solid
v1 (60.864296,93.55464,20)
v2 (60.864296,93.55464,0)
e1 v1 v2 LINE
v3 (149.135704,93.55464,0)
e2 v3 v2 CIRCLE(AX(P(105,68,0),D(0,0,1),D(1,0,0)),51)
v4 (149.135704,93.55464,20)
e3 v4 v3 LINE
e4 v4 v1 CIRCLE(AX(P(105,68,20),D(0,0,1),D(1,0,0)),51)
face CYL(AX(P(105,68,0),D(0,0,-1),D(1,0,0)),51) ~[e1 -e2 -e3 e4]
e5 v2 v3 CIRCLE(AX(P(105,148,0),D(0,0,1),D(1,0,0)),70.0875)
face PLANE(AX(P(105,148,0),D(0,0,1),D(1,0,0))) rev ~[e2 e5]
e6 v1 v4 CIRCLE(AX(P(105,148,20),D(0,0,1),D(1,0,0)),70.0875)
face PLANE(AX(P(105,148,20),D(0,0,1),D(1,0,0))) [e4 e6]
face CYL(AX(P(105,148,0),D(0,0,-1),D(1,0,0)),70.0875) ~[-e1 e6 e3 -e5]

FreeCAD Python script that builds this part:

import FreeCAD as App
import Part
import Sketcher

doc = App.newDocument("Part")
params = doc.addObject("Spreadsheet::Sheet", "Params")
for row, (alias, value) in enumerate([
    ("sketch1_diameter", "102 mm"),
    ("pad1_length", "20 mm"),
    ("pad2_length", "20 mm"),
], start=1):
    params.set(f"A{row}", alias)
    params.set(f"B{row}", "=" + value)
    params.setAlias(f"B{row}", alias)

body = doc.addObject("PartDesign::Body", "Body")

# Sketch on XY plane
sketch1 = body.newObject("Sketcher::SketchObject", "Sketch")
sketch1.AttachmentSupport = (doc.getObject("XY_Plane"), [""])
sketch1.MapMode = "FlatFace"
sketch1.addGeometry(Part.Circle(App.Vector(105, 68, 0), App.Vector(0, 0, 1), 51), False)
sketch1.addConstraint(Sketcher.Constraint("Diameter", 0, 102.0))
sketch1.addConstraint(Sketcher.Constraint("DistanceX", -1, 1, 0, 3, 105.0))
sketch1.addConstraint(Sketcher.Constraint("DistanceY", -1, 1, 0, 3, 68.0))
sketch1.setExpression("Constraints[0]", "Params.sketch1_diameter")
pad1 = body.newObject("PartDesign::Pad", "Pad")
pad1.Profile = sketch1
pad1.setExpression("Length", "Params.pad1_length")
body2 = doc.addObject("PartDesign::Body", "Body001")

# Sketch on XY plane
sketch2 = body2.newObject("Sketcher::SketchObject", "Sketch001")
sketch2.AttachmentSupport = (doc.getObject("XY_Plane001"), [""])
sketch2.MapMode = "FlatFace"
sketch2.addGeometry(Part.Circle(App.Vector(105, 148, 0), App.Vector(0, 0, 1), 70), False)
sketch2.addConstraint(Sketcher.Constraint("Diameter", 0, 140.175))
sketch2.addConstraint(Sketcher.Constraint("DistanceX", -1, 1, 0, 3, 105.0))
sketch2.addConstraint(Sketcher.Constraint("DistanceY", -1, 1, 0, 3, 148.0))
pad2 = body2.newObject("PartDesign::Pad", "Pad001")
pad2.Profile = sketch2
pad2.setExpression("Length", "Params.pad2_length")
doc.recompute()

boolean = body2.newObject("PartDesign::Boolean", "Boolean")
boolean.Type = "Common"
boolean.addObjects([body])

doc.recompute()
